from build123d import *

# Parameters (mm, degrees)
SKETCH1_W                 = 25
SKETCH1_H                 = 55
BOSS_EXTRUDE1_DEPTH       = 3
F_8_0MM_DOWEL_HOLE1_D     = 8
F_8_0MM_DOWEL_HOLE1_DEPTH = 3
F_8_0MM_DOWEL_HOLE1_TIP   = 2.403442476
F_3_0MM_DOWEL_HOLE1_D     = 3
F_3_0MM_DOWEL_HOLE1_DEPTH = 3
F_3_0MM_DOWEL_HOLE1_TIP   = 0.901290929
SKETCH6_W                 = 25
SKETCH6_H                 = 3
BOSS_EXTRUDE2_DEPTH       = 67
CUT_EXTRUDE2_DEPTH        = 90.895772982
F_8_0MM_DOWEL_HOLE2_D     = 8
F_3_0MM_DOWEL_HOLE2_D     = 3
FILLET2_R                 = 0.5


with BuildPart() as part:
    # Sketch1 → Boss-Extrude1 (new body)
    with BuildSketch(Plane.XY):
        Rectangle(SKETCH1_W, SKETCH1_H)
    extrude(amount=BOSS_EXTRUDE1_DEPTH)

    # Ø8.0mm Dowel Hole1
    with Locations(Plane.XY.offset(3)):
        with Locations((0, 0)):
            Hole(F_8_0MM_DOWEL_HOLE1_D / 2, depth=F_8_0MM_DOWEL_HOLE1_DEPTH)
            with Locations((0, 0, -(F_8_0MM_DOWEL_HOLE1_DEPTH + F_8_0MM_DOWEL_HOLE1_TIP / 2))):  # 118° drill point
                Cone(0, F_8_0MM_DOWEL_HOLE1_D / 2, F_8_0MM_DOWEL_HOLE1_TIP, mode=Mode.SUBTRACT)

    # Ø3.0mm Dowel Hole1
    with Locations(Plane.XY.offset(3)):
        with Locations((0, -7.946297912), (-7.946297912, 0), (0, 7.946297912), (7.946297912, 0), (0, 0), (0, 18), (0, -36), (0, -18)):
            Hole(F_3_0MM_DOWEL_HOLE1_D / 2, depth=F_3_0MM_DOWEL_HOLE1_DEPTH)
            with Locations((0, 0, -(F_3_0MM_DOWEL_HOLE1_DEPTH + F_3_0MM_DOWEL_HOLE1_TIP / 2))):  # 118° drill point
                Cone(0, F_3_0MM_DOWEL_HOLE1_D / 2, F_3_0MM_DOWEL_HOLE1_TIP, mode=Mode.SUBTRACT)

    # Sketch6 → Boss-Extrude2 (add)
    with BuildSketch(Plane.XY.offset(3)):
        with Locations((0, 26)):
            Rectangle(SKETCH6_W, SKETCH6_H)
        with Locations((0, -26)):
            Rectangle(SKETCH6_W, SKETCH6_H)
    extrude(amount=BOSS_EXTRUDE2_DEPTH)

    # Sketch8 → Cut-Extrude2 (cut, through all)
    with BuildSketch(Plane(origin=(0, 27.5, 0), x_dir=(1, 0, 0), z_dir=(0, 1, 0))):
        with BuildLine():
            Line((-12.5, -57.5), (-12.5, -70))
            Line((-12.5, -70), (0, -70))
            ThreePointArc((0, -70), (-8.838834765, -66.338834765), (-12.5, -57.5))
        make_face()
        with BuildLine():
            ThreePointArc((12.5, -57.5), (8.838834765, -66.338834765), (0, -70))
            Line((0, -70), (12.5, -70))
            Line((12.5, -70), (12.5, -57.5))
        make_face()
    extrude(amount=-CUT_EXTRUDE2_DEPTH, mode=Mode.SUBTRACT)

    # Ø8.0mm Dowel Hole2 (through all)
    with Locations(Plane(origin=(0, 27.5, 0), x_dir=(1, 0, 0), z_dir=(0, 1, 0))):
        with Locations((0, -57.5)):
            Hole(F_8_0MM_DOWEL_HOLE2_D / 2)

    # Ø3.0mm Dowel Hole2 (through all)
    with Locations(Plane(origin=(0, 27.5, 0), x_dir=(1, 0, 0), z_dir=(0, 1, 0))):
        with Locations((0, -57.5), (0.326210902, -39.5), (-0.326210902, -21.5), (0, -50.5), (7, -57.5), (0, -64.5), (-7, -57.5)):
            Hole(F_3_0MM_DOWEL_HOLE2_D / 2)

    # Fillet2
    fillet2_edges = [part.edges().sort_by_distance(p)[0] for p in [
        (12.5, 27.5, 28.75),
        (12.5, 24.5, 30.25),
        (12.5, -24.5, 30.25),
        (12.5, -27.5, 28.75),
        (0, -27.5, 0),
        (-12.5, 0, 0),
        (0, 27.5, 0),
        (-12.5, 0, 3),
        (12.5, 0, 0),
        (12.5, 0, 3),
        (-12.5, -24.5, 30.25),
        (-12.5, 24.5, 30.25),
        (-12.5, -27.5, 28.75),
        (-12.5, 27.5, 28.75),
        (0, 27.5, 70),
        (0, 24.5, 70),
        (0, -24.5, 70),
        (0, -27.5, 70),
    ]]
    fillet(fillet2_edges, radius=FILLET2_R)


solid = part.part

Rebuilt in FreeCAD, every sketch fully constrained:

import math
import FreeCAD as App
import Part
import Sketcher

V = App.Vector


def edges_at(feature, points):
    """Names of the edges that pass closest to the given points."""
    edges = feature.Shape.Edges
    near = lambda p: min(range(len(edges)), key=lambda i: edges[i].distToShape(Part.Vertex(*p))[0])
    return sorted({f"Edge{near(p) + 1}" for p in points})

doc = App.newDocument("Part")
body = doc.addObject("PartDesign::Body", "Body")

sketch1 = body.newObject("Sketcher::SketchObject", "Sketch")
sketch1.AttachmentSupport = (doc.getObject("XY_Plane"), [""])
sketch1.MapMode = "FlatFace"
sketch1.addGeometry([
    Part.LineSegment(V(-12, 28, 0), V(-12, -28, 0)),
    Part.LineSegment(V(-12, -28, 0), V(12, -28, 0)),
    Part.LineSegment(V(12, -28, 0), V(12, 28, 0)),
    Part.LineSegment(V(12, 28, 0), V(-12, 28, 0)),
], False)
sketch1.addConstraint([
    Sketcher.Constraint("Coincident", 0, 2, 1, 1),
    Sketcher.Constraint("Coincident", 1, 2, 2, 1),
    Sketcher.Constraint("Coincident", 2, 2, 3, 1),
    Sketcher.Constraint("Coincident", 3, 2, 0, 1),
    Sketcher.Constraint("Vertical", 0),
    Sketcher.Constraint("Horizontal", 1),
    Sketcher.Constraint("Vertical", 2),
    Sketcher.Constraint("Horizontal", 3),
    Sketcher.Constraint("Symmetric", 0, 2, 2, 2, -1, 1),
    Sketcher.Constraint("DistanceX", 1, 1, 1, 2, 25.0),
    Sketcher.Constraint("DistanceY", 0, 2, 0, 1, 55.0),
])
pad1 = body.newObject("PartDesign::Pad", "Pad")
pad1.Profile = sketch1
pad1.Length = 3

sketch2 = body.newObject("Sketcher::SketchObject", "Sketch001")
sketch2.AttachmentSupport = (doc.getObject("XY_Plane"), [""])
sketch2.MapMode = "FlatFace"
sketch2.AttachmentOffset = App.Placement(V(0, 0, 3), App.Rotation())
sketch2.addGeometry(Part.Circle(V(0, 0, 0), V(0, 0, 1), 4), False)
sketch2.addConstraint([
    Sketcher.Constraint("Coincident", 0, 3, -1, 1),
    Sketcher.Constraint("Diameter", 0, 8.0),
])
doc.recompute()
hole = body.newObject("PartDesign::Hole", "Hole")
hole.Profile = sketch2
hole.ThreadType = "None"
hole.Diameter = 8
hole.DepthType = "Dimension"
hole.Depth = 3
hole.DrillPoint = "Angled"
hole.DrillPointAngle = 118

sketch3 = body.newObject("Sketcher::SketchObject", "Sketch002")
sketch3.AttachmentSupport = (doc.getObject("XY_Plane"), [""])
sketch3.MapMode = "FlatFace"
sketch3.AttachmentOffset = App.Placement(V(0, 0, 3), App.Rotation())
sketch3.addGeometry([
    Part.Circle(V(0, -7.9, 0), V(0, 0, 1), 1.5),
    Part.Circle(V(-7.9, 0, 0), V(0, 0, 1), 1.5),
    Part.Circle(V(0, 7.9, 0), V(0, 0, 1), 1.5),
    Part.Circle(V(7.9, 0, 0), V(0, 0, 1), 1.5),
    Part.Circle(V(0, 0, 0), V(0, 0, 1), 1.5),
    Part.Circle(V(0, 18, 0), V(0, 0, 1), 1.5),
    Part.Circle(V(0, -36, 0), V(0, 0, 1), 1.5),
    Part.Circle(V(0, -18, 0), V(0, 0, 1), 1.5),
], False)
sketch3.addConstraint([
    Sketcher.Constraint("Coincident", 4, 3, -1, 1),
    Sketcher.Constraint("Equal", 0, 1),
    Sketcher.Constraint("Equal", 1, 2),
    Sketcher.Constraint("Equal", 2, 3),
    Sketcher.Constraint("Equal", 3, 4),
    Sketcher.Constraint("Equal", 4, 5),
    Sketcher.Constraint("Equal", 5, 6),
    Sketcher.Constraint("Equal", 6, 7),
    Sketcher.Constraint("Symmetric", 0, 3, 2, 3, -1, 1),
    Sketcher.Constraint("Symmetric", 1, 3, 3, 3, -1, 1),
    Sketcher.Constraint("Symmetric", 5, 3, 7, 3, -1, 1),
    Sketcher.Constraint("PointOnObject", 0, 3, -2),
    Sketcher.Constraint("PointOnObject", 1, 3, -1),
    Sketcher.Constraint("PointOnObject", 5, 3, -2),
    Sketcher.Constraint("PointOnObject", 6, 3, -2),
    Sketcher.Constraint("Diameter", 0, 3.0),
    Sketcher.Constraint("DistanceY", -1, 1, 5, 3, 18.0),
    Sketcher.Constraint("DistanceY", 6, 3, -1, 1, 36.0),
    Sketcher.Constraint("DistanceY", 0, 3, -1, 1, 7.946298),
    Sketcher.Constraint("DistanceX", 1, 3, -1, 1, 7.946298),
])
doc.recompute()
hole2 = body.newObject("PartDesign::Hole", "Hole001")
hole2.Profile = sketch3
hole2.ThreadType = "None"
hole2.Diameter = 3
hole2.DepthType = "Dimension"
hole2.Depth = 3
hole2.DrillPoint = "Angled"
hole2.DrillPointAngle = 118

sketch4 = body.newObject("Sketcher::SketchObject", "Sketch003")
sketch4.AttachmentSupport = (doc.getObject("XY_Plane"), [""])
sketch4.MapMode = "FlatFace"
sketch4.AttachmentOffset = App.Placement(V(0, 0, 3), App.Rotation())
sketch4.addGeometry([
    Part.LineSegment(V(-12.5, 27.5, 0), V(-12.5, 24.5, 0)),
    Part.LineSegment(V(-12.5, 24.5, 0), V(12.5, 24.5, 0)),
    Part.LineSegment(V(12.5, 24.5, 0), V(12.5, 27.5, 0)),
    Part.LineSegment(V(12.5, 27.5, 0), V(-12.5, 27.5, 0)),
    Part.LineSegment(V(-12.5, -24.5, 0), V(-12.5, -27.5, 0)),
    Part.LineSegment(V(-12.5, -27.5, 0), V(12.5, -27.5, 0)),
    Part.LineSegment(V(12.5, -27.5, 0), V(12.5, -24.5, 0)),
    Part.LineSegment(V(12.5, -24.5, 0), V(-12.5, -24.5, 0)),
], False)
sketch4.addConstraint([
    Sketcher.Constraint("Coincident", 0, 2, 1, 1),
    Sketcher.Constraint("Coincident", 1, 2, 2, 1),
    Sketcher.Constraint("Coincident", 2, 2, 3, 1),
    Sketcher.Constraint("Coincident", 3, 2, 0, 1),
    Sketcher.Constraint("Coincident", 4, 2, 5, 1),
    Sketcher.Constraint("Coincident", 5, 2, 6, 1),
    Sketcher.Constraint("Coincident", 6, 2, 7, 1),
    Sketcher.Constraint("Coincident", 7, 2, 4, 1),
    Sketcher.Constraint("Vertical", 0),
    Sketcher.Constraint("Horizontal", 1),
    Sketcher.Constraint("Vertical", 2),
    Sketcher.Constraint("Horizontal", 3),
    Sketcher.Constraint("Vertical", 4),
    Sketcher.Constraint("Horizontal", 5),
    Sketcher.Constraint("Vertical", 6),
    Sketcher.Constraint("Horizontal", 7),
    Sketcher.Constraint("Symmetric", 2, 2, 4, 2, -1, 1),
    Sketcher.Constraint("Symmetric", 0, 2, 6, 2, -1, 1),
    Sketcher.Constraint("Vertical", 3, 2, 4, 2),
    Sketcher.Constraint("DistanceX", 1, 1, 1, 2, 25.0),
    Sketcher.Constraint("DistanceY", 0, 2, 0, 1, 3.0),
    Sketcher.Constraint("DistanceY", 4, 2, 0, 2, 52.0),
])
pad2 = body.newObject("PartDesign::Pad", "Pad001")
pad2.Profile = sketch4
pad2.Length = 67

sketch5 = body.newObject("Sketcher::SketchObject", "Sketch004")
sketch5.AttachmentSupport = (doc.getObject("XZ_Plane"), [""])
sketch5.MapMode = "FlatFace"
sketch5.AttachmentOffset = App.Placement(V(0, 0, -27.5), App.Rotation())
sketch5.addGeometry([
    Part.LineSegment(V(-12, 58, 0), V(-12, 70, 0)),
    Part.LineSegment(V(-12, 70, 0), V(0, 70, 0)),
    Part.ArcOfCircle(Part.Circle(V(0, 58, 0), V(0, 0, 1), 12), math.radians(90), math.radians(180)),
    Part.ArcOfCircle(Part.Circle(V(0, 58, 0), V(0, 0, 1), 12), math.radians(0), math.radians(90)),
    Part.LineSegment(V(0, 70, 0), V(12, 70, 0)),
    Part.LineSegment(V(12, 70, 0), V(12, 58, 0)),
], False)
sketch5.addConstraint([
    Sketcher.Constraint("Coincident", 0, 2, 1, 1),
    Sketcher.Constraint("Tangent", 1, 2, 2, 1),
    Sketcher.Constraint("Tangent", 2, 2, 0, 1),
    Sketcher.Constraint("Tangent", 3, 2, 4, 1),
    Sketcher.Constraint("Coincident", 4, 2, 5, 1),
    Sketcher.Constraint("Tangent", 5, 2, 3, 1),
    Sketcher.Constraint("Vertical", 0),
    Sketcher.Constraint("Horizontal", 1),
    Sketcher.Constraint("Horizontal", 4),
    Sketcher.Constraint("Vertical", 5),
    Sketcher.Constraint("Coincident", 3, 3, 2, 3),
    Sketcher.Constraint("Equal", 2, 3),
    Sketcher.Constraint("PointOnObject", 2, 3, -2),
    Sketcher.Constraint("Radius", 2, 12.5),
    Sketcher.Constraint("DistanceY", -1, 1, 0, 2, 70.0),
])
pocket1 = body.newObject("PartDesign::Pocket", "Pocket")
pocket1.Profile = sketch5
pocket1.Type = "ThroughAll"
pocket1.Reversed = True

sketch6 = body.newObject("Sketcher::SketchObject", "Sketch005")
sketch6.AttachmentSupport = (doc.getObject("XZ_Plane"), [""])
sketch6.MapMode = "FlatFace"
sketch6.AttachmentOffset = App.Placement(V(0, 0, -27.5), App.Rotation())
sketch6.addGeometry(Part.Circle(V(0, 57.5, 0), V(0, 0, 1), 4), False)
sketch6.addConstraint([
    Sketcher.Constraint("PointOnObject", 0, 3, -2),
    Sketcher.Constraint("Diameter", 0, 8.0),
    Sketcher.Constraint("DistanceY", -1, 1, 0, 3, 57.5),
])
doc.recompute()
hole3 = body.newObject("PartDesign::Hole", "Hole002")
hole3.Profile = sketch6
hole3.ThreadType = "None"
hole3.Diameter = 8
hole3.DepthType = "ThroughAll"
hole3.Reversed = True

sketch7 = body.newObject("Sketcher::SketchObject", "Sketch006")
sketch7.AttachmentSupport = (doc.getObject("XZ_Plane"), [""])
sketch7.MapMode = "FlatFace"
sketch7.AttachmentOffset = App.Placement(V(0, 0, -27.5), App.Rotation())
sketch7.addGeometry([
    Part.Circle(V(0, 57.5, 0), V(0, 0, 1), 1.5),
    Part.Circle(V(0.3, 39.5, 0), V(0, 0, 1), 1.5),
    Part.Circle(V(-0.3, 21.5, 0), V(0, 0, 1), 1.5),
    Part.Circle(V(0, 50.5, 0), V(0, 0, 1), 1.5),
    Part.Circle(V(7, 57.5, 0), V(0, 0, 1), 1.5),
    Part.Circle(V(0, 64.5, 0), V(0, 0, 1), 1.5),
    Part.Circle(V(-7, 57.5, 0), V(0, 0, 1), 1.5),
], False)
sketch7.addConstraint([
    Sketcher.Constraint("Equal", 0, 1),
    Sketcher.Constraint("Equal", 1, 2),
    Sketcher.Constraint("Equal", 2, 3),
    Sketcher.Constraint("Equal", 3, 4),
    Sketcher.Constraint("Equal", 4, 5),
    Sketcher.Constraint("Equal", 5, 6),
    Sketcher.Constraint("Symmetric", 4, 3, 6, 3, -2),
    Sketcher.Constraint("PointOnObject", 0, 3, -2),
    Sketcher.Constraint("PointOnObject", 3, 3, -2),
    Sketcher.Constraint("PointOnObject", 5, 3, -2),
    Sketcher.Constraint("Horizontal", 0, 3, 4, 3),
    Sketcher.Constraint("Diameter", 0, 3.0),
    Sketcher.Constraint("DistanceX", -1, 1, 4, 3, 7.0),
    Sketcher.Constraint("DistanceY", 1, 3, 0, 3, 18.0),
    Sketcher.Constraint("DistanceY", 2, 3, 1, 3, 18.0),
    Sketcher.Constraint("DistanceY", 3, 3, 0, 3, 7.0),
    Sketcher.Constraint("DistanceY", 0, 3, 5, 3, 7.0),
    Sketcher.Constraint("DistanceY", -1, 1, 0, 3, 57.5),
    Sketcher.Constraint("DistanceX", -1, 1, 1, 3, 0.326211),
    Sketcher.Constraint("DistanceX", 2, 3, -1, 1, 0.326211),
])
doc.recompute()
hole4 = body.newObject("PartDesign::Hole", "Hole003")
hole4.Profile = sketch7
hole4.ThreadType = "None"
hole4.Diameter = 3
hole4.DepthType = "ThroughAll"
hole4.Reversed = True
doc.recompute()

fillet = body.newObject("PartDesign::Fillet", "Fillet")
fillet.Base = (hole4, edges_at(hole4, [
    (12.5, 27.5, 28.75),
    (12.5, 24.5, 30.25),
    (12.5, -24.5, 30.25),
    (12.5, -27.5, 28.75),
    (0, -27.5, 0),
    (-12.5, 0, 0),
    (0, 27.5, 0),
    (-12.5, 0, 3),
    (12.5, 0, 0),
    (12.5, 0, 3),
    (-12.5, -24.5, 30.25),
    (-12.5, 24.5, 30.25),
    (-12.5, -27.5, 28.75),
    (-12.5, 27.5, 28.75),
    (-8.839, 27.5, 66.339),
    (-8.839, 24.5, 66.339),
    (-8.839, -24.5, 66.339),
    (-8.839, -27.5, 66.339),
]))
fillet.Radius = 0.5

doc.recompute()
